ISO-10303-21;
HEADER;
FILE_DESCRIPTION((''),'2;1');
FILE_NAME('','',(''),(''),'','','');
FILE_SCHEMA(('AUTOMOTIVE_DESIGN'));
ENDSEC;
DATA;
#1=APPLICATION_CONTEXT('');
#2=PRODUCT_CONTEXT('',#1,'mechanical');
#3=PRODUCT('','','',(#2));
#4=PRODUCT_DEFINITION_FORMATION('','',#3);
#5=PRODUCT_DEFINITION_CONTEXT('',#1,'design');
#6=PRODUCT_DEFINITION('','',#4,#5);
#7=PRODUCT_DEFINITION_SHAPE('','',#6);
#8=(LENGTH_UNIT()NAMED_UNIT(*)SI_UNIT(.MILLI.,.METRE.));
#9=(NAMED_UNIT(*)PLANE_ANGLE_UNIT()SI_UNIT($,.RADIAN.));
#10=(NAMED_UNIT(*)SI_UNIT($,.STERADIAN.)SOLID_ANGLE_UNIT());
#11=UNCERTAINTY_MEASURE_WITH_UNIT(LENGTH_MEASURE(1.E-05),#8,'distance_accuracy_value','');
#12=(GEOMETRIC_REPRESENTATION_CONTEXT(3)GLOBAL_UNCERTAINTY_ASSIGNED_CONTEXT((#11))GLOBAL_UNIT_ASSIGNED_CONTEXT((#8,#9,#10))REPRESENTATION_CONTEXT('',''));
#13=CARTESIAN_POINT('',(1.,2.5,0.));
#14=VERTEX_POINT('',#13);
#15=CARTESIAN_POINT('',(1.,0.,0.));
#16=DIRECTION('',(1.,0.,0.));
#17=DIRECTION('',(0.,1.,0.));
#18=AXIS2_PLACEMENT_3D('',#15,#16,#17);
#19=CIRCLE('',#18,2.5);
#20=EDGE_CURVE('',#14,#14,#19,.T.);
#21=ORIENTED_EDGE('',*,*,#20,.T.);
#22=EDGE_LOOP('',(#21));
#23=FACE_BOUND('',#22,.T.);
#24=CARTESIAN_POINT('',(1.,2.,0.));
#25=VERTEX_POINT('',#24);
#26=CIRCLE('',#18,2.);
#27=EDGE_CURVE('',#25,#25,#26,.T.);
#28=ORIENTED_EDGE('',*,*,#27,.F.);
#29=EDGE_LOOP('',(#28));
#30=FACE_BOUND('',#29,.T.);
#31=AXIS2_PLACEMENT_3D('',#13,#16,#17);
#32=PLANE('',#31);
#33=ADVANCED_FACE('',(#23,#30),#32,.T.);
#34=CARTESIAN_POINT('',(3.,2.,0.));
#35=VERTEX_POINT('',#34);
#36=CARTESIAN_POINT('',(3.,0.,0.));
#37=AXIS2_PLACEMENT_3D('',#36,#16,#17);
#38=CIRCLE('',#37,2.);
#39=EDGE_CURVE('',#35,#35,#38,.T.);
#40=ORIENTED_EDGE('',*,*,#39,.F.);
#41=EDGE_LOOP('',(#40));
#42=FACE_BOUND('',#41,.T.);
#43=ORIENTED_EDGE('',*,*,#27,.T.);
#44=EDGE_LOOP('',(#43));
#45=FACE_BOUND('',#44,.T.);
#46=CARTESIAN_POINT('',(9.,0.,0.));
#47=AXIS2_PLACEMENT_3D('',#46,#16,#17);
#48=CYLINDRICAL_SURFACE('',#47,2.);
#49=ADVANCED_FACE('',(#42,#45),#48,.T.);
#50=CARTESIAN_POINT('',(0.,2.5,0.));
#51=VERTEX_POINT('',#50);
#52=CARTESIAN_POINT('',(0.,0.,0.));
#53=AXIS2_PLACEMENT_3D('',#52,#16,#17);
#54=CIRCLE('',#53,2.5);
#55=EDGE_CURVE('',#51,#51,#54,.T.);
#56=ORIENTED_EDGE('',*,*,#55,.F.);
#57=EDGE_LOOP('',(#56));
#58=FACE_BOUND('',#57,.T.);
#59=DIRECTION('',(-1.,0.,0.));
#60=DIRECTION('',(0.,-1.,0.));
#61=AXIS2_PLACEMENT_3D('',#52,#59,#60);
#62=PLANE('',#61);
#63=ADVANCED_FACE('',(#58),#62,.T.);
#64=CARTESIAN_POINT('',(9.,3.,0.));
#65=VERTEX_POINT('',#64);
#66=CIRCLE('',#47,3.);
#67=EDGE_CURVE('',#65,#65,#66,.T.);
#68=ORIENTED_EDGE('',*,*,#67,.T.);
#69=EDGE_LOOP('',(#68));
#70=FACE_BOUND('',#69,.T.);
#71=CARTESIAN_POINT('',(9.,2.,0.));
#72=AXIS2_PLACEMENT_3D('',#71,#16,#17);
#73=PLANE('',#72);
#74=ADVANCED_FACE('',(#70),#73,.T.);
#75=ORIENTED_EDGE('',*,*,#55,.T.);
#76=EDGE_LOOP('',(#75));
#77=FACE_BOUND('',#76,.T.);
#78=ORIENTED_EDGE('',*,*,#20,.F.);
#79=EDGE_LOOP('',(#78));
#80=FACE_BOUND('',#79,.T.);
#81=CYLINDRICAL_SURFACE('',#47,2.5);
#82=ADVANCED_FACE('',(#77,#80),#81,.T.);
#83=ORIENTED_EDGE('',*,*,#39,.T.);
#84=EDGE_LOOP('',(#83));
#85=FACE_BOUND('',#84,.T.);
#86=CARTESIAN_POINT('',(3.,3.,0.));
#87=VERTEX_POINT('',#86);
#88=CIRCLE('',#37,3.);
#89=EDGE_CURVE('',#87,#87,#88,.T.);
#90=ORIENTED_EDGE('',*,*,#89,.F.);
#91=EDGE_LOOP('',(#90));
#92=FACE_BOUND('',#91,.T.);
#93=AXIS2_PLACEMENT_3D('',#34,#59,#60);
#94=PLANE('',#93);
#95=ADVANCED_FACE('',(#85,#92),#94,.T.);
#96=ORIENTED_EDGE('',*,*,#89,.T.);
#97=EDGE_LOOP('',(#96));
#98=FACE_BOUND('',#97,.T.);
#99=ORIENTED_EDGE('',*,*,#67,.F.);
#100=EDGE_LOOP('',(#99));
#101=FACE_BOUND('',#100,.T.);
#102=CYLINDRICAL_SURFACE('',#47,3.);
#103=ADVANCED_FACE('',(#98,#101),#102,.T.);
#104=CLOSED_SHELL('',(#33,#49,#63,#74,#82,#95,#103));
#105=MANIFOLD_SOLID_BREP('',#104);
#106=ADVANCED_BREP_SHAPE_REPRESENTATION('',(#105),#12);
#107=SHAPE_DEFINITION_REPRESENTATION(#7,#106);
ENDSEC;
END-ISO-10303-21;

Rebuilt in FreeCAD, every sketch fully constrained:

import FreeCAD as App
import Part
import Sketcher
from FreeCAD import Vector

doc = App.newDocument("Part")
body = doc.addObject("PartDesign::Body", "Body")

# Sketch on XY plane
sketch1 = body.newObject("Sketcher::SketchObject", "Sketch")
sketch1.AttachmentSupport = (doc.getObject("XY_Plane"), [""])
sketch1.MapMode = "FlatFace"
sketch1.addGeometry(Part.LineSegment(Vector(0, 2.5, 0), Vector(0, 0, 0)), False)
sketch1.addGeometry(Part.LineSegment(Vector(0, 0, 0), Vector(9, 0, 0)), False)
sketch1.addGeometry(Part.LineSegment(Vector(9, 0, 0), Vector(9, 3, 0)), False)
sketch1.addGeometry(Part.LineSegment(Vector(9, 3, 0), Vector(3, 3, 0)), False)
sketch1.addGeometry(Part.LineSegment(Vector(3, 3, 0), Vector(3, 2, 0)), False)
sketch1.addGeometry(Part.LineSegment(Vector(3, 2, 0), Vector(1, 2, 0)), False)
sketch1.addGeometry(Part.LineSegment(Vector(1, 2, 0), Vector(1, 2.5, 0)), False)
sketch1.addGeometry(Part.LineSegment(Vector(1, 2.5, 0), Vector(0, 2.5, 0)), False)
sketch1.addConstraint(Sketcher.Constraint("Coincident", 0, 2, 1, 1))
sketch1.addConstraint(Sketcher.Constraint("Coincident", 1, 2, 2, 1))
sketch1.addConstraint(Sketcher.Constraint("Coincident", 2, 2, 3, 1))
sketch1.addConstraint(Sketcher.Constraint("Coincident", 3, 2, 4, 1))
sketch1.addConstraint(Sketcher.Constraint("Coincident", 4, 2, 5, 1))
sketch1.addConstraint(Sketcher.Constraint("Coincident", 5, 2, 6, 1))
sketch1.addConstraint(Sketcher.Constraint("Coincident", 6, 2, 7, 1))
sketch1.addConstraint(Sketcher.Constraint("Coincident", 7, 2, 0, 1))
sketch1.addConstraint(Sketcher.Constraint("Vertical", 0))
sketch1.addConstraint(Sketcher.Constraint("Horizontal", 1))
sketch1.addConstraint(Sketcher.Constraint("Vertical", 2))
sketch1.addConstraint(Sketcher.Constraint("Horizontal", 3))
sketch1.addConstraint(Sketcher.Constraint("Vertical", 4))
sketch1.addConstraint(Sketcher.Constraint("Horizontal", 5))
sketch1.addConstraint(Sketcher.Constraint("Vertical", 6))
sketch1.addConstraint(Sketcher.Constraint("Horizontal", 7))
sketch1.addConstraint(Sketcher.Constraint("Coincident", 0, 2, -1, 1))
sketch1.addConstraint(Sketcher.Constraint("Equal", 7, 4))
sketch1.addConstraint(Sketcher.Constraint("DistanceX", 1, 1, 1, 2, 9.0))
sketch1.addConstraint(Sketcher.Constraint("DistanceX", 3, 2, 3, 1, 6.0))
sketch1.addConstraint(Sketcher.Constraint("DistanceX", 5, 2, 5, 1, 2.0))
sketch1.addConstraint(Sketcher.Constraint("DistanceY", 2, 1, 2, 2, 3.0))
sketch1.addConstraint(Sketcher.Constraint("DistanceY", 0, 2, 0, 1, 2.5))
revolution = body.newObject("PartDesign::Revolution", "Revolution")
revolution.Profile = sketch1
revolution.ReferenceAxis = (sketch1, ["H_Axis"])
revolution.Angle = 360

doc.recompute()
